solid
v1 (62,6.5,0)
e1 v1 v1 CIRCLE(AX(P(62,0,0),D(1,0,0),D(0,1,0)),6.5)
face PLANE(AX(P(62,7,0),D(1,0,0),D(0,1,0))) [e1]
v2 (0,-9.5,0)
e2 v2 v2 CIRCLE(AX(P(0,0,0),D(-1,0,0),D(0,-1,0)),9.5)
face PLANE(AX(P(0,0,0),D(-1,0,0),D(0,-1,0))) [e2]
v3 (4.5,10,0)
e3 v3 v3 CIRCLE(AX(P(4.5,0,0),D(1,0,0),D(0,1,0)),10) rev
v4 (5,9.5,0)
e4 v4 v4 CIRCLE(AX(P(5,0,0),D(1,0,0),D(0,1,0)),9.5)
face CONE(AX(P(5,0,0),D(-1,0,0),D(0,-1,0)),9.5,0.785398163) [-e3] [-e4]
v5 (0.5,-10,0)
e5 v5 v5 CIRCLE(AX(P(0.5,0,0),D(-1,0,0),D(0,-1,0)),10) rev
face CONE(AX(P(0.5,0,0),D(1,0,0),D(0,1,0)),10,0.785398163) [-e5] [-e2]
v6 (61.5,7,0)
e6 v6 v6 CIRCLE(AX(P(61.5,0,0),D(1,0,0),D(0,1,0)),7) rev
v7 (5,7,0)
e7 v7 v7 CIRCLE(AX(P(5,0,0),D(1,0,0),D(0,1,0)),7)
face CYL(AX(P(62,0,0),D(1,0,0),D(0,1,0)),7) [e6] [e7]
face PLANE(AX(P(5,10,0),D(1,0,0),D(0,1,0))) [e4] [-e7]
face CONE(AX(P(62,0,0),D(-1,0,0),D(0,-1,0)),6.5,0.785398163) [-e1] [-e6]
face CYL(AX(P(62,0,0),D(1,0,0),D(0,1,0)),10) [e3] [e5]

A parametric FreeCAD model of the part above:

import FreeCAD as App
import Part
import Sketcher

V = App.Vector
Q = App.Units.Quantity


def edges_at(feature, points):
    """Names of the edges that pass closest to the given points."""
    edges = feature.Shape.Edges
    near = lambda p: min(range(len(edges)), key=lambda i: edges[i].distToShape(Part.Vertex(*p))[0])
    return sorted({f"Edge{near(p) + 1}" for p in points})

doc = App.newDocument("Part")
body = doc.addObject("PartDesign::Body", "Body")

# Sketch on XY plane
sketch1 = body.newObject("Sketcher::SketchObject", "Sketch")
sketch1.AttachmentSupport = (doc.getObject("XY_Plane"), [""])
sketch1.MapMode = "FlatFace"
sketch1.addGeometry(Part.LineSegment(V(0, 10, 0), V(0, 0, 0)), False)
sketch1.addGeometry(Part.LineSegment(V(0, 0, 0), V(62, 0, 0)), False)
sketch1.addGeometry(Part.LineSegment(V(62, 0, 0), V(62, 7, 0)), False)
sketch1.addGeometry(Part.LineSegment(V(62, 7, 0), V(5, 7, 0)), False)
sketch1.addGeometry(Part.LineSegment(V(5, 7, 0), V(5, 10, 0)), False)
sketch1.addGeometry(Part.LineSegment(V(5, 10, 0), V(0, 10, 0)), False)
sketch1.addConstraint(Sketcher.Constraint("Coincident", 0, 2, 1, 1))
sketch1.addConstraint(Sketcher.Constraint("Coincident", 1, 2, 2, 1))
sketch1.addConstraint(Sketcher.Constraint("Coincident", 2, 2, 3, 1))
sketch1.addConstraint(Sketcher.Constraint("Coincident", 3, 2, 4, 1))
sketch1.addConstraint(Sketcher.Constraint("Coincident", 4, 2, 5, 1))
sketch1.addConstraint(Sketcher.Constraint("Coincident", 5, 2, 0, 1))
sketch1.addConstraint(Sketcher.Constraint("Vertical", 0))
sketch1.addConstraint(Sketcher.Constraint("Horizontal", 1))
sketch1.addConstraint(Sketcher.Constraint("Vertical", 2))
sketch1.addConstraint(Sketcher.Constraint("Horizontal", 3))
sketch1.addConstraint(Sketcher.Constraint("Vertical", 4))
sketch1.addConstraint(Sketcher.Constraint("Horizontal", 5))
sketch1.addConstraint(Sketcher.Constraint("Coincident", 0, 2, -1, 1))
sketch1.addConstraint(Sketcher.Constraint("DistanceX", 1, 1, 1, 2, Q("62 mm")))
sketch1.addConstraint(Sketcher.Constraint("DistanceX", 3, 2, 3, 1, Q("57 mm")))
sketch1.addConstraint(Sketcher.Constraint("DistanceY", 0, 2, 0, 1, Q("10 mm")))
sketch1.addConstraint(Sketcher.Constraint("DistanceY", 2, 1, 2, 2, Q("7 mm")))
revolution = body.newObject("PartDesign::Revolution", "Revolution")
revolution.Profile = sketch1
revolution.ReferenceAxis = (sketch1, ["H_Axis"])
revolution.Angle = 360
doc.recompute()

chamfer = body.newObject("PartDesign::Chamfer", "Chamfer")
chamfer.Base = (revolution, edges_at(revolution, [(62, -7, 0), (5, -10, 0), (0, -10, 0)]))
chamfer.Size = 0.5

doc.recompute()
